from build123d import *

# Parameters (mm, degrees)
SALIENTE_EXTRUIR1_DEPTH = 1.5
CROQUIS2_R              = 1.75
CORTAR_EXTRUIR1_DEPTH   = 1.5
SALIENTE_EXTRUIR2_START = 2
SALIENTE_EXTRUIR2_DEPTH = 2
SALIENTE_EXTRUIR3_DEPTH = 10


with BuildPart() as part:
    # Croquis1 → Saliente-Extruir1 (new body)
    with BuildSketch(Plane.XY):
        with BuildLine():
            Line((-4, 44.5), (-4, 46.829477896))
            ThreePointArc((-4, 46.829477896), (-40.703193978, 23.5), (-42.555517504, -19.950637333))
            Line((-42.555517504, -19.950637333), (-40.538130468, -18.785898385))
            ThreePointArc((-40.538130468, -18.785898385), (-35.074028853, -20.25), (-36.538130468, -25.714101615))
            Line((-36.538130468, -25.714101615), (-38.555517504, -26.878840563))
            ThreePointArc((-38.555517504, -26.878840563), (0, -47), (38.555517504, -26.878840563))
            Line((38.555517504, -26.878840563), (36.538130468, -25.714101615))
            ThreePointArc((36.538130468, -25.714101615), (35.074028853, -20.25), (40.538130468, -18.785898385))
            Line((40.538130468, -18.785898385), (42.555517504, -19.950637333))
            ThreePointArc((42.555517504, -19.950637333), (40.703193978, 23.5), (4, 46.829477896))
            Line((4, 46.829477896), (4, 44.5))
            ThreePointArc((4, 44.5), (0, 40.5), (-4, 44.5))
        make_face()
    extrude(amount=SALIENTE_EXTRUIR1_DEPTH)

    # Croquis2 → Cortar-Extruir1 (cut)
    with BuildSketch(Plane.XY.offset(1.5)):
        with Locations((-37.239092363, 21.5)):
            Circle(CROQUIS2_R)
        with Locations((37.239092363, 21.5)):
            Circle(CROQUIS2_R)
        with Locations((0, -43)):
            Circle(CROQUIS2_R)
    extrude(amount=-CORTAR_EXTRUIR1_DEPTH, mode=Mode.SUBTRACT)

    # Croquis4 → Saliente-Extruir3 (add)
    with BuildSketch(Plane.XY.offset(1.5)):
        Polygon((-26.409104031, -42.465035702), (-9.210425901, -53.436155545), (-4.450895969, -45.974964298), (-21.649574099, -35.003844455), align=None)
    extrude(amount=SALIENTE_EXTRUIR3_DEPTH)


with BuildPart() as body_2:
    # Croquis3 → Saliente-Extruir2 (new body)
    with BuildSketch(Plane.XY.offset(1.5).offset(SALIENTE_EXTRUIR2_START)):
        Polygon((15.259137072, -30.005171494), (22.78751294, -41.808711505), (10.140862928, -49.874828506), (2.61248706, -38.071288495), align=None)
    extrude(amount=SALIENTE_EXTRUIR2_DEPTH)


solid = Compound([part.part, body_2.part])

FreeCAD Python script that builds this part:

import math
import FreeCAD as App
import Part
import Sketcher

V = App.Vector
Q = App.Units.Quantity

doc = App.newDocument("Part")
params = doc.addObject("Spreadsheet::Sheet", "Params")
for row, (alias, value) in enumerate([
    ("sketch1_radius", "47 mm"),
    ("sketch1_radius2", "4 mm"),
    ("pad1_length", "1.5 mm"),
    ("sketch2_diameter", "3.5 mm"),
    ("pocket1_length", "1.5 mm"),
    ("sketch3_length", "20.4 mm"),
    ("sketch3_length2", "8.85 mm"),
    ("pad2_length", "10 mm"),
    ("sketch4_length", "14 mm"),
    ("sketch4_length2", "15 mm"),
    ("pad3_length", "2 mm"),
], start=1):
    params.set(f"A{row}", alias)
    params.set(f"B{row}", "=" + value)
    params.setAlias(f"B{row}", alias)

body = doc.addObject("PartDesign::Body", "Body")

sketch1 = body.newObject("Sketcher::SketchObject", "Sketch")
sketch1.AttachmentSupport = (doc.getObject("XY_Plane"), [""])
sketch1.MapMode = "FlatFace"
sketch1.addGeometry([
    Part.LineSegment(V(-4, 44.5, 0), V(-4, 46.829478, 0)),
    Part.ArcOfCircle(Part.Circle(V(0, 0, 0), V(0, 0, 1), 47), math.radians(94.882142), math.radians(205.117858)),
    Part.LineSegment(V(-42.555518, -19.950637, 0), V(-40.53813, -18.785898, 0)),
    Part.ArcOfCircle(Part.Circle(V(-38.53813, -22.25, 0), V(0, 0, 1), 4), math.radians(-60), math.radians(120)),
    Part.LineSegment(V(-36.53813, -25.714102, 0), V(-38.555518, -26.878841, 0)),
    Part.ArcOfCircle(Part.Circle(V(0, 0, 0), V(0, 0, 1), 47), math.radians(-145.117858), math.radians(-34.882142)),
    Part.LineSegment(V(38.555518, -26.878841, 0), V(36.53813, -25.714102, 0)),
    Part.ArcOfCircle(Part.Circle(V(38.53813, -22.25, 0), V(0, 0, 1), 4), math.radians(60), math.radians(240)),
    Part.LineSegment(V(40.53813, -18.785898, 0), V(42.555518, -19.950637, 0)),
    Part.ArcOfCircle(Part.Circle(V(0, 0, 0), V(0, 0, 1), 47), math.radians(-25.117858), math.radians(85.117858)),
    Part.LineSegment(V(4, 46.829478, 0), V(4, 44.5, 0)),
    Part.ArcOfCircle(Part.Circle(V(0, 44.5, 0), V(0, 0, 1), 4), math.radians(180), math.radians(360)),
], False)
sketch1.addConstraint([
    Sketcher.Constraint("Coincident", 0, 2, 1, 1),
    Sketcher.Constraint("Coincident", 1, 2, 2, 1),
    Sketcher.Constraint("Tangent", 2, 2, 3, 2),
    Sketcher.Constraint("Tangent", 3, 1, 4, 1),
    Sketcher.Constraint("Coincident", 4, 2, 5, 1),
    Sketcher.Constraint("Coincident", 5, 2, 6, 1),
    Sketcher.Constraint("Tangent", 6, 2, 7, 2),
    Sketcher.Constraint("Tangent", 7, 1, 8, 1),
    Sketcher.Constraint("Coincident", 8, 2, 9, 1),
    Sketcher.Constraint("Coincident", 9, 2, 10, 1),
    Sketcher.Constraint("Tangent", 10, 2, 11, 2),
    Sketcher.Constraint("Tangent", 11, 1, 0, 1),
    Sketcher.Constraint("Vertical", 0),
    Sketcher.Constraint("Vertical", 10),
    Sketcher.Constraint("Coincident", 1, 3, -1, 1),
    Sketcher.Constraint("Coincident", 5, 3, -1, 1),
    Sketcher.Constraint("Coincident", 9, 3, -1, 1),
    Sketcher.Constraint("Equal", 1, 5),
    Sketcher.Constraint("Equal", 3, 7),
    Sketcher.Constraint("Equal", 5, 9),
    Sketcher.Constraint("Equal", 7, 11),
    Sketcher.Constraint("Symmetric", 3, 3, 7, 3, -2),
    Sketcher.Constraint("PointOnObject", 11, 3, -2),
    Sketcher.Constraint("Parallel", 2, 4),
    Sketcher.Constraint("Parallel", 6, 8),
    Sketcher.Constraint("Horizontal", 4, 2, 5, 2),
    Sketcher.Constraint("Equal", 2, 4),
    Sketcher.Constraint("Radius", 1, 47.0),
    Sketcher.Constraint("Radius", 3, 4.0),
    Sketcher.Constraint("Angle", 2, Q("30 deg")),
    Sketcher.Constraint("DistanceY", -1, 1, 11, 3, 44.5),
    Sketcher.Constraint("DistanceY", 3, 3, -1, 1, 22.25),
])
sketch1.setExpression("Constraints[27]", "Params.sketch1_radius")
sketch1.setExpression("Constraints[28]", "Params.sketch1_radius2")
pad1 = body.newObject("PartDesign::Pad", "Pad")
pad1.Profile = sketch1
pad1.setExpression("Length", "Params.pad1_length")

sketch2 = body.newObject("Sketcher::SketchObject", "Sketch001")
sketch2.AttachmentSupport = (doc.getObject("XY_Plane"), [""])
sketch2.MapMode = "FlatFace"
sketch2.AttachmentOffset = App.Placement(V(0, 0, 1.5), App.Rotation())
sketch2.addGeometry([
    Part.Circle(V(-37.239092, 21.5, 0), V(0, 0, 1), 1.75),
    Part.Circle(V(37.239092, 21.5, 0), V(0, 0, 1), 1.75),
    Part.Circle(V(0, -43, 0), V(0, 0, 1), 1.75),
], False)
sketch2.addConstraint([
    Sketcher.Constraint("Equal", 0, 1),
    Sketcher.Constraint("Equal", 1, 2),
    Sketcher.Constraint("Symmetric", 0, 3, 1, 3, -2),
    Sketcher.Constraint("PointOnObject", 2, 3, -2),
    Sketcher.Constraint("Diameter", 0, 3.5),
    Sketcher.Constraint("DistanceY", 2, 3, -1, 1, 43.0),
    Sketcher.Constraint("DistanceY", -1, 1, 0, 3, 21.5),
    Sketcher.Constraint("DistanceX", 0, 3, -1, 1, 37.239092),
])
sketch2.setExpression("Constraints[4]", "Params.sketch2_diameter")
pocket1 = body.newObject("PartDesign::Pocket", "Pocket")
pocket1.Profile = sketch2
pocket1.setExpression("Length", "Params.pocket1_length")

sketch3 = body.newObject("Sketcher::SketchObject", "Sketch002")
sketch3.AttachmentSupport = (doc.getObject("XY_Plane"), [""])
sketch3.MapMode = "FlatFace"
sketch3.AttachmentOffset = App.Placement(V(0, 0, 1.5), App.Rotation())
sketch3.addGeometry([
    Part.LineSegment(V(-26.409104, -42.465036, 0), V(-9.210426, -53.436156, 0)),
    Part.LineSegment(V(-9.210426, -53.436156, 0), V(-4.450896, -45.974964, 0)),
    Part.LineSegment(V(-4.450896, -45.974964, 0), V(-21.649574, -35.003844, 0)),
    Part.LineSegment(V(-21.649574, -35.003844, 0), V(-26.409104, -42.465036, 0)),
], False)
sketch3.addConstraint([
    Sketcher.Constraint("Coincident", 0, 2, 1, 1),
    Sketcher.Constraint("Coincident", 1, 2, 2, 1),
    Sketcher.Constraint("Coincident", 2, 2, 3, 1),
    Sketcher.Constraint("Coincident", 3, 2, 0, 1),
    Sketcher.Constraint("Perpendicular", 0, 1),
    Sketcher.Constraint("Perpendicular", 1, 2),
    Sketcher.Constraint("Perpendicular", 2, 3),
    Sketcher.Constraint("Distance", 0, 20.4),
    Sketcher.Constraint("Distance", 1, 8.85),
    Sketcher.Constraint("DistanceX", 0, 2, 1, 2, 4.75953),
    Sketcher.Constraint("DistanceX", 0, 2, -1, 1, 9.210426),
    Sketcher.Constraint("DistanceY", 0, 2, -1, 1, 53.436156),
])
sketch3.setExpression("Constraints[7]", "Params.sketch3_length")
sketch3.setExpression("Constraints[8]", "Params.sketch3_length2")
pad2 = body.newObject("PartDesign::Pad", "Pad001")
pad2.Profile = sketch3
pad2.setExpression("Length", "Params.pad2_length")
body2 = doc.addObject("PartDesign::Body", "Body001")

sketch4 = body2.newObject("Sketcher::SketchObject", "Sketch003")
sketch4.AttachmentSupport = (doc.getObject("XY_Plane001"), [""])
sketch4.MapMode = "FlatFace"
sketch4.AttachmentOffset = App.Placement(V(0, 0, 3.5), App.Rotation())
sketch4.addGeometry([
    Part.LineSegment(V(22.787513, -41.808712, 0), V(15.259137, -30.005171, 0)),
    Part.LineSegment(V(15.259137, -30.005171, 0), V(2.612487, -38.071288, 0)),
    Part.LineSegment(V(2.612487, -38.071288, 0), V(10.140863, -49.874829, 0)),
    Part.LineSegment(V(10.140863, -49.874829, 0), V(22.787513, -41.808712, 0)),
], False)
sketch4.addConstraint([
    Sketcher.Constraint("Coincident", 0, 2, 1, 1),
    Sketcher.Constraint("Coincident", 1, 2, 2, 1),
    Sketcher.Constraint("Coincident", 2, 2, 3, 1),
    Sketcher.Constraint("Coincident", 3, 2, 0, 1),
    Sketcher.Constraint("Perpendicular", 0, 1),
    Sketcher.Constraint("Perpendicular", 1, 2),
    Sketcher.Constraint("Perpendicular", 2, 3),
    Sketcher.Constraint("Distance", 0, 14.0),
    Sketcher.Constraint("Distance", 1, 15.0),
    Sketcher.Constraint("Angle", 0, Q("122.53 deg")),
    Sketcher.Constraint("DistanceY", 0, 2, -1, 1, 30.005171),
    Sketcher.Constraint("DistanceX", -1, 1, 0, 2, 15.259137),
])
sketch4.setExpression("Constraints[7]", "Params.sketch4_length")
sketch4.setExpression("Constraints[8]", "Params.sketch4_length2")
pad3 = body2.newObject("PartDesign::Pad", "Pad002")
pad3.Profile = sketch4
pad3.setExpression("Length", "Params.pad3_length")

doc.recompute()
